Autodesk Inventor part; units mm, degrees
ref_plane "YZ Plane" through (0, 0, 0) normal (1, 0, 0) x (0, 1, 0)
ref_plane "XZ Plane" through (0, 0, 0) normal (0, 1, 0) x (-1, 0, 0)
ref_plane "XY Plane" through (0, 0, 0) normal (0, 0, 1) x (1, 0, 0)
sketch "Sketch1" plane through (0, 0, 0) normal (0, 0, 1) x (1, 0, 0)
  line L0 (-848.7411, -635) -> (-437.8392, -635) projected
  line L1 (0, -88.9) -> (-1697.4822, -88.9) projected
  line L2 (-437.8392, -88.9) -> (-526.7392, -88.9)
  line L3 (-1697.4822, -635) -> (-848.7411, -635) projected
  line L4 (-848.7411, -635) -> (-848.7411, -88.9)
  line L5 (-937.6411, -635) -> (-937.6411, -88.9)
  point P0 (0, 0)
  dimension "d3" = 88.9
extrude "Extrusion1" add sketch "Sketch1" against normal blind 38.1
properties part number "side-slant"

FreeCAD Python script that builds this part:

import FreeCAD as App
import Part
import Sketcher

V = App.Vector
Q = App.Units.Quantity

doc = App.newDocument("Part")
body = doc.addObject("PartDesign::Body", "Body")

# Sketch on XY plane
sketch1 = body.newObject("Sketcher::SketchObject", "Sketch")
sketch1.AttachmentSupport = (doc.getObject("XY_Plane"), [""])
sketch1.MapMode = "FlatFace"
sketch1.addGeometry([
    Part.LineSegment(V(-849, -635, 0), V(-849, -89, 0)),
    Part.LineSegment(V(-849, -89, 0), V(-938, -89, 0)),
    Part.LineSegment(V(-938, -89, 0), V(-938, -635, 0)),
    Part.LineSegment(V(-938, -635, 0), V(-849, -635, 0)),
], False)
sketch1.addConstraint([
    Sketcher.Constraint("Coincident", 0, 2, 1, 1),
    Sketcher.Constraint("Coincident", 1, 2, 2, 1),
    Sketcher.Constraint("Coincident", 2, 2, 3, 1),
    Sketcher.Constraint("Coincident", 3, 2, 0, 1),
    Sketcher.Constraint("Vertical", 0),
    Sketcher.Constraint("Horizontal", 1),
    Sketcher.Constraint("Vertical", 2),
    Sketcher.Constraint("Horizontal", 3),
    Sketcher.Constraint("DistanceX", 1, 2, 1, 1, Q("3.5 in")),
    Sketcher.Constraint("DistanceY", 0, 2, -1, 1, Q("3.5 in")),
    Sketcher.Constraint("DistanceY", 0, 1, 0, 2, Q("21.5 in")),
    Sketcher.Constraint("DistanceX", 0, 2, -1, 1, Q("33.415 in")),
])
pad1 = body.newObject("PartDesign::Pad", "Pad")
pad1.Profile = sketch1
pad1.Length = Q("1.5 in")
pad1.Reversed = True

doc.recompute()
